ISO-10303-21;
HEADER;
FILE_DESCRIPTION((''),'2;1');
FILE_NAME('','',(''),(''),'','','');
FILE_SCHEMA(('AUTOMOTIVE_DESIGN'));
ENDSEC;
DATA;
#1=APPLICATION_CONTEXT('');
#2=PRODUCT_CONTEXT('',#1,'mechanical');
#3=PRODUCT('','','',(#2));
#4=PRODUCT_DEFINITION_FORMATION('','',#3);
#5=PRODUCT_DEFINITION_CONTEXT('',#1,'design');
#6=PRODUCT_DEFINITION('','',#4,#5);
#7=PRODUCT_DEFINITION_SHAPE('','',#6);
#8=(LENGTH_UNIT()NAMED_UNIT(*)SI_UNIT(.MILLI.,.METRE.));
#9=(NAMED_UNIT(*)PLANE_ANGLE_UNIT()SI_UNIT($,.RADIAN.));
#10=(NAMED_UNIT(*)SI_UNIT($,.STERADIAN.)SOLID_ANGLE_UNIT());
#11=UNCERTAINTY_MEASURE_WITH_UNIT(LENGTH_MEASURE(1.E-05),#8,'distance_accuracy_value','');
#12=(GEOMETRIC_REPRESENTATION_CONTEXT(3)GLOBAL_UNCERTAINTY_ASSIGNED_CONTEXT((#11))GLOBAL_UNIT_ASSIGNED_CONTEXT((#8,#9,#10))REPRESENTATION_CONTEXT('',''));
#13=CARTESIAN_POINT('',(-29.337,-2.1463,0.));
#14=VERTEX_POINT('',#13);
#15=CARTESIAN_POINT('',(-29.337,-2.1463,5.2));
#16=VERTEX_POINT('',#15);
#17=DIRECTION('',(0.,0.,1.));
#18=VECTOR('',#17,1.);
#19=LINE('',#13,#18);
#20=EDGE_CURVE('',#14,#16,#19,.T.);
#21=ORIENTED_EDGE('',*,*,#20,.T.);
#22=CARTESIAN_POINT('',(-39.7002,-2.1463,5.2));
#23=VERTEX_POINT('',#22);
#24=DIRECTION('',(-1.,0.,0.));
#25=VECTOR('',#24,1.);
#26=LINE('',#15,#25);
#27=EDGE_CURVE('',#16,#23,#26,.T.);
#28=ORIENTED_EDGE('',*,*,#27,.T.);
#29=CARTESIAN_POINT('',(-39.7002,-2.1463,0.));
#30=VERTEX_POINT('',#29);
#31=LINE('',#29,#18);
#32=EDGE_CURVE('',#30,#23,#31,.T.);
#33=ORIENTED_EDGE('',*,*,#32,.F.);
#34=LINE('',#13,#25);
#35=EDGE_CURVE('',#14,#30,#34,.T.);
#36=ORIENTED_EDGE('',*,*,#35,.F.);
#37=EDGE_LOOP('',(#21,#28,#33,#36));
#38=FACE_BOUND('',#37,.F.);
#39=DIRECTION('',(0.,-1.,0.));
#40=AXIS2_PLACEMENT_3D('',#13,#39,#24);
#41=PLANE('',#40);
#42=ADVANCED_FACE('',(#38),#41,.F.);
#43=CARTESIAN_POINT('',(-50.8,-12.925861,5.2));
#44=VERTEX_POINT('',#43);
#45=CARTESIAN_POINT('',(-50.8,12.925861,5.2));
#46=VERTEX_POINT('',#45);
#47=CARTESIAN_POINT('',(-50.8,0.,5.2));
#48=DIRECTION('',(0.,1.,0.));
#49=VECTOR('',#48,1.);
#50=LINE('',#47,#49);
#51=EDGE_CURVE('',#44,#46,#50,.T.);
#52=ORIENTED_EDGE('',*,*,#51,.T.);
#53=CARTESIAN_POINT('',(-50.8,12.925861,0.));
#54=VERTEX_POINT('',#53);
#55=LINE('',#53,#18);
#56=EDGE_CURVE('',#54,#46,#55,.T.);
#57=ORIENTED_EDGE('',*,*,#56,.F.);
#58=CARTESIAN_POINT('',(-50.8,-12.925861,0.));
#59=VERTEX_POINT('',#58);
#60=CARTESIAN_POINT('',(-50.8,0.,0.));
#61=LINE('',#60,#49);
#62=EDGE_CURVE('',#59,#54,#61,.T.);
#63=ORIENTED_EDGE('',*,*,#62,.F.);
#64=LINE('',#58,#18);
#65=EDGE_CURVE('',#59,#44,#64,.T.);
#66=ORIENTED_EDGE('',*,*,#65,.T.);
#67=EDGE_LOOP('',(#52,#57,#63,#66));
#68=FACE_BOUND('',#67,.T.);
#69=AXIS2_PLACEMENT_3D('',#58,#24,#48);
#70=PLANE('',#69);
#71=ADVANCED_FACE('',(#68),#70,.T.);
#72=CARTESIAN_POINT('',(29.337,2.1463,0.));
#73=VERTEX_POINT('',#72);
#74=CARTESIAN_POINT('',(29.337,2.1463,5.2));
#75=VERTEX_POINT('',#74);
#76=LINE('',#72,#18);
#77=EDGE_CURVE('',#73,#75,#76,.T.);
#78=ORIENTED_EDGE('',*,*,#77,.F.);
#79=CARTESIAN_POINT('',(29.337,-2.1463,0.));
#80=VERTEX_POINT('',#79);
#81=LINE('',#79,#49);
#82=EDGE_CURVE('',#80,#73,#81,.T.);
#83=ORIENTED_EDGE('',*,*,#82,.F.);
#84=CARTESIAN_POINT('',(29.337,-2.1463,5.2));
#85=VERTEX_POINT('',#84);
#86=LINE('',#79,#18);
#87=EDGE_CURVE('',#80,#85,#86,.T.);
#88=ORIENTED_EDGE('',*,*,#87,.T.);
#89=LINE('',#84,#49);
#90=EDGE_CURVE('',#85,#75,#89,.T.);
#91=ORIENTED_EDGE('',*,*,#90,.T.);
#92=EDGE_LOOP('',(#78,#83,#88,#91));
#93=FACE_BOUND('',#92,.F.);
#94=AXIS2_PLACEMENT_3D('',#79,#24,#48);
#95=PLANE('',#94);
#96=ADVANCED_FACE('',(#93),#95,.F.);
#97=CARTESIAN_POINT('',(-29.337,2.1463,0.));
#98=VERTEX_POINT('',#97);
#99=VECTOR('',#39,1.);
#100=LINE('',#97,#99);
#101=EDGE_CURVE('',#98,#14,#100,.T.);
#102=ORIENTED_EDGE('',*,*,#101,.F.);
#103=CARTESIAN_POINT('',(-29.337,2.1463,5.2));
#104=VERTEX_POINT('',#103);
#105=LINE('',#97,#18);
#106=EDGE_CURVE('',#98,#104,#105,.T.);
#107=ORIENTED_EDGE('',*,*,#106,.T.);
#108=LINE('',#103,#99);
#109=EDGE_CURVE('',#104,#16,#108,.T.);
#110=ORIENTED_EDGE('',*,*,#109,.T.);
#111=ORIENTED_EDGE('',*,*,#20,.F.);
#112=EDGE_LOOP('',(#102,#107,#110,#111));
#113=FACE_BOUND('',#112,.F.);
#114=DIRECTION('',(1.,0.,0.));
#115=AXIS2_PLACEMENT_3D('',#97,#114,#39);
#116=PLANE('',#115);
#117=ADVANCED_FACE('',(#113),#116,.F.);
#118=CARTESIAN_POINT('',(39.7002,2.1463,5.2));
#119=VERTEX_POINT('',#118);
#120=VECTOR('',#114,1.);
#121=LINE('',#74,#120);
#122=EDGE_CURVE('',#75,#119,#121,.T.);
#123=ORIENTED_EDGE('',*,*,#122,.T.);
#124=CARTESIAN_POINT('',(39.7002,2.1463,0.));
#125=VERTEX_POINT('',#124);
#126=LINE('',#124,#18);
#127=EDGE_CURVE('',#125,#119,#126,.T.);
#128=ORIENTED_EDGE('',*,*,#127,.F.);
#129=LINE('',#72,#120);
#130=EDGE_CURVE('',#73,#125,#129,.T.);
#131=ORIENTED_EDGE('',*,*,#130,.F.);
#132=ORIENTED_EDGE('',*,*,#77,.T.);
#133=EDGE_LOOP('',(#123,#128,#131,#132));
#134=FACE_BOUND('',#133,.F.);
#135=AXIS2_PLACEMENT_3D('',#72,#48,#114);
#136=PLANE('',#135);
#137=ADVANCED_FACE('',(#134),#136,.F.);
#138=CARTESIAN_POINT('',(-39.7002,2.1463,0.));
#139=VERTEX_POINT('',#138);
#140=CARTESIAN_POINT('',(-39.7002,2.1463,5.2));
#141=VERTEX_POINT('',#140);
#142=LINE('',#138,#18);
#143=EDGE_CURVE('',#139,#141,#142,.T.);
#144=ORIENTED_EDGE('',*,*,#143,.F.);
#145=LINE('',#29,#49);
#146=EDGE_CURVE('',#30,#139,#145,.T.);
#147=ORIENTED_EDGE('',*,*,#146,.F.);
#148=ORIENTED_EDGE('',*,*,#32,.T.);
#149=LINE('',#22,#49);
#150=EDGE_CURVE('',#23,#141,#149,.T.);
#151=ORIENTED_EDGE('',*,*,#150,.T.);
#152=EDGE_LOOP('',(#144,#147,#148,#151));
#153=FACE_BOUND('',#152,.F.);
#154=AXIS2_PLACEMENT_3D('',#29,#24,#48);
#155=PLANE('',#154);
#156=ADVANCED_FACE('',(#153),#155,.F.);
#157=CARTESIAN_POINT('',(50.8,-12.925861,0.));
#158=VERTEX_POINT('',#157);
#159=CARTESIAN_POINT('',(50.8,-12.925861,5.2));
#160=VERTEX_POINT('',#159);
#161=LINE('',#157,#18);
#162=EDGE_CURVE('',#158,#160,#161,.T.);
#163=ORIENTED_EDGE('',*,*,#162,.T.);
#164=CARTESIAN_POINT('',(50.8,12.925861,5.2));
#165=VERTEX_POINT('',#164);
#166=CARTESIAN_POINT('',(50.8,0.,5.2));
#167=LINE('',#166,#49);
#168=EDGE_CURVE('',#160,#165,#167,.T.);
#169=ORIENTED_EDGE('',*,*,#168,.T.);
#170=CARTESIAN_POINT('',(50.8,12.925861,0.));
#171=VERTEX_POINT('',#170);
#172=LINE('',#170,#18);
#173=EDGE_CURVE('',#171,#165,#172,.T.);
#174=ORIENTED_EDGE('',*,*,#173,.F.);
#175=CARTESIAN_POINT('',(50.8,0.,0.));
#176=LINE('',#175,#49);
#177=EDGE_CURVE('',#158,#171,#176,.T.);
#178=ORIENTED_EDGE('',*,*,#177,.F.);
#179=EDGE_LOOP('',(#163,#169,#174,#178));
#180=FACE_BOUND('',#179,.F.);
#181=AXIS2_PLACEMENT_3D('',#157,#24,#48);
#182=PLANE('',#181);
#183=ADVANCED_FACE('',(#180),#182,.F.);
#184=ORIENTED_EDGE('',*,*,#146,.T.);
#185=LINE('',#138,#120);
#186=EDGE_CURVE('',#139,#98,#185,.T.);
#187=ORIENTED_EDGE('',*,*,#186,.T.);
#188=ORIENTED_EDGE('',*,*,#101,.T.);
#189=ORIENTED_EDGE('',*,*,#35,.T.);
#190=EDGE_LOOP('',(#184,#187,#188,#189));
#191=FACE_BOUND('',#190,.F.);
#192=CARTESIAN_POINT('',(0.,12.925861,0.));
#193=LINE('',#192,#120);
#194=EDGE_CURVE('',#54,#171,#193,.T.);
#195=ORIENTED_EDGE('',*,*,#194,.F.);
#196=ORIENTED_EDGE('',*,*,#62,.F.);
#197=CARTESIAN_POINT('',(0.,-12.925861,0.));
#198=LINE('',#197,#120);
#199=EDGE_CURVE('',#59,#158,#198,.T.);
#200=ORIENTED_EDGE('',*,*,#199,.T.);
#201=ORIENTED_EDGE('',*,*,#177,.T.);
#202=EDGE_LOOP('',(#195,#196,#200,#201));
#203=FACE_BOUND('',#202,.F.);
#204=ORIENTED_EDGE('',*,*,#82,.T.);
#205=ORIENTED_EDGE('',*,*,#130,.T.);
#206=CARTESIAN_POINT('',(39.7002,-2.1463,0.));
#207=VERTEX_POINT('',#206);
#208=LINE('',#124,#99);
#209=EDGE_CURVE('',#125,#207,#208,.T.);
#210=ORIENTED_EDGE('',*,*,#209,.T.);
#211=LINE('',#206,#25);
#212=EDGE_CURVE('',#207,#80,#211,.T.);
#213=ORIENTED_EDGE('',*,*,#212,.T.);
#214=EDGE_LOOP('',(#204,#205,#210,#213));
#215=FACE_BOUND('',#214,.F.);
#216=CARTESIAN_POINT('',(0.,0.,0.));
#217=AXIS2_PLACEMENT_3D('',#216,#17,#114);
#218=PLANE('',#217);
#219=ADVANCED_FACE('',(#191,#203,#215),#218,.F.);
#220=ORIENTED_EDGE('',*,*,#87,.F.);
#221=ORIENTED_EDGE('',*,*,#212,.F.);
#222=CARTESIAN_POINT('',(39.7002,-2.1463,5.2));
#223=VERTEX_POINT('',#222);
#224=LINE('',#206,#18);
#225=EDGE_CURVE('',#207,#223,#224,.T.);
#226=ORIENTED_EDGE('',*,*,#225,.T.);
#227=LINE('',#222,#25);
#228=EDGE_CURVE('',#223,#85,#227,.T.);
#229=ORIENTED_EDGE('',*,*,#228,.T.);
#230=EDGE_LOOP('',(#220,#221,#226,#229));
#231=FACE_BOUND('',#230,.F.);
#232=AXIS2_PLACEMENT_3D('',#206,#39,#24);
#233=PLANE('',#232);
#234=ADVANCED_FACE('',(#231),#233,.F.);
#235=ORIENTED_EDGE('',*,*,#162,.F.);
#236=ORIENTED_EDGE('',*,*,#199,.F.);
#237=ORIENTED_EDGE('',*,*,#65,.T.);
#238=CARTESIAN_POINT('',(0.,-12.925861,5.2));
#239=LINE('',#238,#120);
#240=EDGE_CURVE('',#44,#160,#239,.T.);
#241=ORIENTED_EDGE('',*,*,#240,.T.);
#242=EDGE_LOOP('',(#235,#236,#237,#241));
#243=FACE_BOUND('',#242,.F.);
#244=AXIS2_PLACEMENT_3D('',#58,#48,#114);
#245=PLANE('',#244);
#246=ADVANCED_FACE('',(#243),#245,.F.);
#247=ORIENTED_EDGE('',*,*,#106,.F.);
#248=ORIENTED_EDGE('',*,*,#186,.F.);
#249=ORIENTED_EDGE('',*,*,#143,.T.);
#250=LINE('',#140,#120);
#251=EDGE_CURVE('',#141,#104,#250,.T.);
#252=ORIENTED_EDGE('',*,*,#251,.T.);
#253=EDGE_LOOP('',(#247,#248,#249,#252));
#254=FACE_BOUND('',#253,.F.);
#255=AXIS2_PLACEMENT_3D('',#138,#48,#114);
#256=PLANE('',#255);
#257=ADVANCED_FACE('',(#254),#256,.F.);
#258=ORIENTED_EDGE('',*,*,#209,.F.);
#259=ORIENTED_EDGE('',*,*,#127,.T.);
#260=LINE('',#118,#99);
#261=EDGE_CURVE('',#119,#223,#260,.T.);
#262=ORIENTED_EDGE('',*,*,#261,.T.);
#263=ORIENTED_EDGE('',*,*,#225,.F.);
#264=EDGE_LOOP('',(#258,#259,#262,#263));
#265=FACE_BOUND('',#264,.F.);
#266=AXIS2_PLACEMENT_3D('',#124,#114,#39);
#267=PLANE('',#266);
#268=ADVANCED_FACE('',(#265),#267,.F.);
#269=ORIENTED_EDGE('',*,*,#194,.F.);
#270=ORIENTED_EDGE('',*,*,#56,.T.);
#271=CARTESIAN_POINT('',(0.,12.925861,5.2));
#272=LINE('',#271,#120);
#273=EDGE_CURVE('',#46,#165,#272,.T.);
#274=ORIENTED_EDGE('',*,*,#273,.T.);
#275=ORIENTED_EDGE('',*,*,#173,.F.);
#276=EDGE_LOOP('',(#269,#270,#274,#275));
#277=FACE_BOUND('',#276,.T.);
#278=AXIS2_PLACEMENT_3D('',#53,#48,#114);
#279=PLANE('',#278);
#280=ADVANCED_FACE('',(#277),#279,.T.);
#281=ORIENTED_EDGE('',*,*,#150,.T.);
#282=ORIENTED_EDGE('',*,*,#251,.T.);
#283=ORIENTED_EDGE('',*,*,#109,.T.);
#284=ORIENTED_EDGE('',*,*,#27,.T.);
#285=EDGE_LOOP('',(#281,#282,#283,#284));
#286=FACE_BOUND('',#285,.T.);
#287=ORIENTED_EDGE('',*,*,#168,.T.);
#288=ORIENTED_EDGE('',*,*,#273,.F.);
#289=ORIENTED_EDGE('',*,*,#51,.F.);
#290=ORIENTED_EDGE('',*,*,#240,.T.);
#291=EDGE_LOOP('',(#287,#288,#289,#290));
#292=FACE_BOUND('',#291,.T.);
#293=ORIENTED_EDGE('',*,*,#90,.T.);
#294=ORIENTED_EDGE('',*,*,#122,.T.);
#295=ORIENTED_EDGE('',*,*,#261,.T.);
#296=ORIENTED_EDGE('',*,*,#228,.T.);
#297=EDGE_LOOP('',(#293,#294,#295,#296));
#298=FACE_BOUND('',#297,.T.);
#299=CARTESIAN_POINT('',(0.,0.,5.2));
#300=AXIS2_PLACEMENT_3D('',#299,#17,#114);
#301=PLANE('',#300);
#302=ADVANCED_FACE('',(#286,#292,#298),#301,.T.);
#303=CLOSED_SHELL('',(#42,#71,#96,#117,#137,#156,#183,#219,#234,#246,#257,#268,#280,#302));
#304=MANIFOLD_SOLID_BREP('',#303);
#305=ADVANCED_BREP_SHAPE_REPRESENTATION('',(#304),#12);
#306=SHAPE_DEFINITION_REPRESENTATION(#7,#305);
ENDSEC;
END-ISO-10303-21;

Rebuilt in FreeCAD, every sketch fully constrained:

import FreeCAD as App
import Part
import Sketcher
from FreeCAD import Vector
Q = App.Units.Quantity

doc = App.newDocument("Part")
params = doc.addObject("Spreadsheet::Sheet", "Params")
for row, (alias, value) in enumerate([
    ("sketch1_width", "4 in"),
    ("sketch1_width2", "0.408 in"),
    ("sketch1_height", "0.169 in"),
    ("pad1_length", "5.2 mm"),
], start=1):
    params.set(f"A{row}", alias)
    params.set(f"B{row}", "=" + value)
    params.setAlias(f"B{row}", alias)

body = doc.addObject("PartDesign::Body", "Body")

sketch1 = body.newObject("Sketcher::SketchObject", "Sketch")
sketch1.AttachmentSupport = (doc.getObject("XY_Plane"), [""])
sketch1.MapMode = "FlatFace"
sketch1.addGeometry([
    Part.LineSegment(Vector(-50.8, 12.9, 0), Vector(-50.8, -12.9, 0)),
    Part.LineSegment(Vector(-50.8, -12.9, 0), Vector(50.8, -12.9, 0)),
    Part.LineSegment(Vector(50.8, -12.9, 0), Vector(50.8, 12.9, 0)),
    Part.LineSegment(Vector(50.8, 12.9, 0), Vector(-50.8, 12.9, 0)),
    Part.LineSegment(Vector(-29.3, -2.1, 0), Vector(-39.7, -2.1, 0)),
    Part.LineSegment(Vector(-39.7, -2.1, 0), Vector(-39.7, 2.1, 0)),
    Part.LineSegment(Vector(-39.7, 2.1, 0), Vector(-29.3, 2.1, 0)),
    Part.LineSegment(Vector(-29.3, 2.1, 0), Vector(-29.3, -2.1, 0)),
    Part.LineSegment(Vector(29.3, -2.1, 0), Vector(29.3, 2.1, 0)),
    Part.LineSegment(Vector(29.3, 2.1, 0), Vector(39.7, 2.1, 0)),
    Part.LineSegment(Vector(39.7, 2.1, 0), Vector(39.7, -2.1, 0)),
    Part.LineSegment(Vector(39.7, -2.1, 0), Vector(29.3, -2.1, 0)),
], False)
sketch1.addConstraint([
    Sketcher.Constraint("Coincident", 0, 2, 1, 1),
    Sketcher.Constraint("Coincident", 1, 2, 2, 1),
    Sketcher.Constraint("Coincident", 2, 2, 3, 1),
    Sketcher.Constraint("Coincident", 3, 2, 0, 1),
    Sketcher.Constraint("Coincident", 4, 2, 5, 1),
    Sketcher.Constraint("Coincident", 5, 2, 6, 1),
    Sketcher.Constraint("Coincident", 6, 2, 7, 1),
    Sketcher.Constraint("Coincident", 7, 2, 4, 1),
    Sketcher.Constraint("Coincident", 8, 2, 9, 1),
    Sketcher.Constraint("Coincident", 9, 2, 10, 1),
    Sketcher.Constraint("Coincident", 10, 2, 11, 1),
    Sketcher.Constraint("Coincident", 11, 2, 8, 1),
    Sketcher.Constraint("Vertical", 0),
    Sketcher.Constraint("Horizontal", 1),
    Sketcher.Constraint("Vertical", 2),
    Sketcher.Constraint("Horizontal", 3),
    Sketcher.Constraint("Horizontal", 4),
    Sketcher.Constraint("Vertical", 5),
    Sketcher.Constraint("Horizontal", 6),
    Sketcher.Constraint("Vertical", 7),
    Sketcher.Constraint("Vertical", 8),
    Sketcher.Constraint("Horizontal", 9),
    Sketcher.Constraint("Vertical", 10),
    Sketcher.Constraint("Horizontal", 11),
    Sketcher.Constraint("Symmetric", 0, 2, 2, 2, -1, 1),
    Sketcher.Constraint("Symmetric", 7, 2, 8, 2, -1, 1),
    Sketcher.Constraint("Symmetric", 5, 2, 10, 2, -1, 1),
    Sketcher.Constraint("Horizontal", 6, 2, 8, 2),
    Sketcher.Constraint("DistanceX", 1, 1, 1, 2, Q("4 in")),
    Sketcher.Constraint("DistanceX", 4, 2, 4, 1, Q("0.408 in")),
    Sketcher.Constraint("DistanceY", 5, 1, 5, 2, Q("0.169 in")),
    Sketcher.Constraint("DistanceX", 6, 2, 8, 2, Q("2.31 in")),
    Sketcher.Constraint("DistanceY", 0, 2, 0, 1, Q("25.851722 mm")),
])
sketch1.setExpression("Constraints[28]", "Params.sketch1_width")
sketch1.setExpression("Constraints[29]", "Params.sketch1_width2")
sketch1.setExpression("Constraints[30]", "Params.sketch1_height")
pad1 = body.newObject("PartDesign::Pad", "Pad")
pad1.Profile = sketch1
pad1.setExpression("Length", "Params.pad1_length")

doc.recompute()
